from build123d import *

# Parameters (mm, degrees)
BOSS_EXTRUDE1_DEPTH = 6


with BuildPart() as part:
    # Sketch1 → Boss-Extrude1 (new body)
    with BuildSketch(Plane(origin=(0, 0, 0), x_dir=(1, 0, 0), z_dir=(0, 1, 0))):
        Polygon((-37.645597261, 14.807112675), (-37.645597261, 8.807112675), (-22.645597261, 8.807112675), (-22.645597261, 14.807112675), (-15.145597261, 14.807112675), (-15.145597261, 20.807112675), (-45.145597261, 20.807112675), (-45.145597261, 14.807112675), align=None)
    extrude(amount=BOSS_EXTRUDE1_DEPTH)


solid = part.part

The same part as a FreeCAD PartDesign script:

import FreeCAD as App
import Part
import Sketcher

V = App.Vector
Q = App.Units.Quantity

doc = App.newDocument("Part")
body = doc.addObject("PartDesign::Body", "Body")

# Sketch on XZ plane
sketch1 = doc.addObject("Sketcher::SketchObject", "Sketch")
body.addObject(sketch1)
sketch1.AttachmentSupport = (doc.XZ_Plane, [""])
sketch1.MapMode = "FlatFace"
sketch1.addGeometry(Part.LineSegment(V(-37.645597, -14.807113, 0), V(-37.645597, -8.807113, 0)), False)
sketch1.addGeometry(Part.LineSegment(V(-37.645597, -8.807113, 0), V(-22.645597, -8.807113, 0)), False)
sketch1.addGeometry(Part.LineSegment(V(-22.645597, -8.807113, 0), V(-22.645597, -14.807113, 0)), False)
sketch1.addGeometry(Part.LineSegment(V(-22.645597, -14.807113, 0), V(-15.145597, -14.807113, 0)), False)
sketch1.addGeometry(Part.LineSegment(V(-15.145597, -14.807113, 0), V(-15.145597, -20.807113, 0)), False)
sketch1.addGeometry(Part.LineSegment(V(-15.145597, -20.807113, 0), V(-45.145597, -20.807113, 0)), False)
sketch1.addGeometry(Part.LineSegment(V(-45.145597, -20.807113, 0), V(-45.145597, -14.807113, 0)), False)
sketch1.addGeometry(Part.LineSegment(V(-45.145597, -14.807113, 0), V(-37.645597, -14.807113, 0)), False)
sketch1.addConstraint(Sketcher.Constraint("Coincident", 0, 2, 1, 1))
sketch1.addConstraint(Sketcher.Constraint("Coincident", 1, 2, 2, 1))
sketch1.addConstraint(Sketcher.Constraint("Coincident", 2, 2, 3, 1))
sketch1.addConstraint(Sketcher.Constraint("Coincident", 3, 2, 4, 1))
sketch1.addConstraint(Sketcher.Constraint("Coincident", 4, 2, 5, 1))
sketch1.addConstraint(Sketcher.Constraint("Coincident", 5, 2, 6, 1))
sketch1.addConstraint(Sketcher.Constraint("Coincident", 6, 2, 7, 1))
sketch1.addConstraint(Sketcher.Constraint("Coincident", 7, 2, 0, 1))
sketch1.addConstraint(Sketcher.Constraint("Vertical", 0))
sketch1.addConstraint(Sketcher.Constraint("Horizontal", 1))
sketch1.addConstraint(Sketcher.Constraint("Vertical", 2))
sketch1.addConstraint(Sketcher.Constraint("Horizontal", 3))
sketch1.addConstraint(Sketcher.Constraint("Vertical", 4))
sketch1.addConstraint(Sketcher.Constraint("Horizontal", 5))
sketch1.addConstraint(Sketcher.Constraint("Vertical", 6))
sketch1.addConstraint(Sketcher.Constraint("Horizontal", 7))
sketch1.addConstraint(Sketcher.Constraint("Horizontal", 3, 2, 6, 2))
sketch1.addConstraint(Sketcher.Constraint("Equal", 3, 7))
sketch1.addConstraint(Sketcher.Constraint("Equal", 2, 4))
sketch1.addConstraint(Sketcher.Constraint("DistanceX", 1, 1, 1, 2, Q("15 mm")))
sketch1.addConstraint(Sketcher.Constraint("DistanceX", 5, 2, 5, 1, Q("30 mm")))
sketch1.addConstraint(Sketcher.Constraint("DistanceY", 0, 1, 0, 2, Q("6 mm")))
sketch1.addConstraint(Sketcher.Constraint("DistanceX", 0, 2, -1, 1, Q("37.645597 mm")))
sketch1.addConstraint(Sketcher.Constraint("DistanceY", 0, 2, -1, 1, Q("8.807113 mm")))
pad1 = doc.addObject("PartDesign::Pad", "Pad")
body.addObject(pad1)
pad1.Profile = sketch1
pad1.Length = 6
pad1.Reversed = True

doc.recompute()
